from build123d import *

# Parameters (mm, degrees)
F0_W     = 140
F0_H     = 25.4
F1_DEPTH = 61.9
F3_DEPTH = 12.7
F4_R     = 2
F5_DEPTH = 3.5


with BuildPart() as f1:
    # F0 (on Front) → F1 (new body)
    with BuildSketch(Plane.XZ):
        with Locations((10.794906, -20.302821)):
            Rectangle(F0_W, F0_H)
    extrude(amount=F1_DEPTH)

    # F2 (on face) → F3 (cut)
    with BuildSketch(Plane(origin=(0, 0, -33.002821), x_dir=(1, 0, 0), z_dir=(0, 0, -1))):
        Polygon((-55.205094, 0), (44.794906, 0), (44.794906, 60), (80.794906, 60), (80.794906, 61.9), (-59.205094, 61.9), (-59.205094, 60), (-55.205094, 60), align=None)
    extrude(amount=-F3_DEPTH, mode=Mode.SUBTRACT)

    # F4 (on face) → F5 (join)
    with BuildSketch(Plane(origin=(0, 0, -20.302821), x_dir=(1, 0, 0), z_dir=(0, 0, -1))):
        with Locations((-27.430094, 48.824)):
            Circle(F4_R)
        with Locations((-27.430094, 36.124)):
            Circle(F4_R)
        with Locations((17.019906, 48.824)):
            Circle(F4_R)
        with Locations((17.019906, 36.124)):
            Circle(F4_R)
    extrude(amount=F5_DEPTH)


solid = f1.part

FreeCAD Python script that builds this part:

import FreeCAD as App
import Part
import Sketcher

V = App.Vector


def add_polygon(sketch, points):
    """Adds a closed chain of lines whose ends are joined by coincident constraints."""
    first, n = sketch.GeometryCount, len(points)
    for a, b in zip(points, points[1:] + points[:1]):
        sketch.addGeometry(Part.LineSegment(App.Vector(*a, 0), App.Vector(*b, 0)), False)
    for i in range(n):
        sketch.addConstraint(Sketcher.Constraint("Coincident", first + i, 2, first + (i + 1) % n, 1))

doc = App.newDocument("Part")
body = doc.addObject("PartDesign::Body", "Body")

sketch1 = doc.addObject("Sketcher::SketchObject", "Sketch")
body.addObject(sketch1)
sketch1.AttachmentSupport = (doc.XZ_Plane, [""])
sketch1.MapMode = "FlatFace"
add_polygon(sketch1, [(-59.205094, -7.602821), (-59.205094, -33.002821), (80.794906, -33.002821), (80.794906, -7.602821)])
sketch1.addConstraint([
    Sketcher.Constraint("Vertical", 0),
    Sketcher.Constraint("Horizontal", 1),
    Sketcher.Constraint("Vertical", 2),
    Sketcher.Constraint("Horizontal", 3),
    Sketcher.Constraint("DistanceX", 1, 1, 1, 2, 140.0),
    Sketcher.Constraint("DistanceY", 0, 2, 0, 1, 25.4),
    Sketcher.Constraint("DistanceY", 0, 2, -1, 1, 33.002821),
    Sketcher.Constraint("DistanceX", 0, 2, -1, 1, 59.205094),
])
pad1 = doc.addObject("PartDesign::Pad", "Pad")
body.addObject(pad1)
pad1.Profile = sketch1
pad1.Length = 61.9

sketch2 = doc.addObject("Sketcher::SketchObject", "Sketch001")
body.addObject(sketch2)
sketch2.AttachmentSupport = (doc.XY_Plane, [""])
sketch2.MapMode = "FlatFace"
sketch2.AttachmentOffset = App.Placement(V(0, 0, -33.002821), App.Rotation())
add_polygon(sketch2, [(-55.205094, 0), (44.794906, 0), (44.794906, -60), (80.794906, -60), (80.794906, -61.9), (-59.205094, -61.9), (-59.205094, -60), (-55.205094, -60)])
sketch2.addConstraint([
    Sketcher.Constraint("Horizontal", 0),
    Sketcher.Constraint("Vertical", 1),
    Sketcher.Constraint("Horizontal", 2),
    Sketcher.Constraint("Vertical", 3),
    Sketcher.Constraint("Horizontal", 4),
    Sketcher.Constraint("Vertical", 5),
    Sketcher.Constraint("Horizontal", 6),
    Sketcher.Constraint("Vertical", 7),
    Sketcher.Constraint("PointOnObject", 0, 2, -1),
    Sketcher.Constraint("Horizontal", 2, 2, 5, 2),
    Sketcher.Constraint("DistanceX", 0, 1, 0, 2, 100.0),
    Sketcher.Constraint("DistanceX", 2, 1, 2, 2, 36.0),
    Sketcher.Constraint("DistanceX", 4, 2, 4, 1, 140.0),
    Sketcher.Constraint("DistanceY", 1, 2, 1, 1, 60.0),
    Sketcher.Constraint("DistanceY", 3, 2, 3, 1, 1.9),
    Sketcher.Constraint("DistanceX", -1, 1, 0, 2, 44.794906),
])
pocket1 = doc.addObject("PartDesign::Pocket", "Pocket")
body.addObject(pocket1)
pocket1.Profile = sketch2
pocket1.Length = 12.7
pocket1.Reversed = True

sketch3 = doc.addObject("Sketcher::SketchObject", "Sketch002")
body.addObject(sketch3)
sketch3.AttachmentSupport = (doc.XY_Plane, [""])
sketch3.MapMode = "FlatFace"
sketch3.AttachmentOffset = App.Placement(V(0, 0, -20.302821), App.Rotation())
sketch3.addGeometry([
    Part.Circle(V(-27.430094, -48.824, 0), V(0, 0, 1), 2),
    Part.Circle(V(-27.430094, -36.124, 0), V(0, 0, 1), 2),
    Part.Circle(V(17.019906, -48.824, 0), V(0, 0, 1), 2),
    Part.Circle(V(17.019906, -36.124, 0), V(0, 0, 1), 2),
], False)
sketch3.addConstraint([
    Sketcher.Constraint("Equal", 0, 1),
    Sketcher.Constraint("Equal", 1, 2),
    Sketcher.Constraint("Equal", 2, 3),
    Sketcher.Constraint("Horizontal", 0, 3, 2, 3),
    Sketcher.Constraint("Horizontal", 1, 3, 3, 3),
    Sketcher.Constraint("Vertical", 0, 3, 1, 3),
    Sketcher.Constraint("Vertical", 2, 3, 3, 3),
    Sketcher.Constraint("Diameter", 0, 4.0),
    Sketcher.Constraint("DistanceY", 0, 3, 1, 3, 12.7),
    Sketcher.Constraint("DistanceX", 0, 3, 2, 3, 44.45),
    Sketcher.Constraint("DistanceY", 0, 3, -1, 1, 48.824),
    Sketcher.Constraint("DistanceX", 0, 3, -1, 1, 27.430094),
])
pad2 = doc.addObject("PartDesign::Pad", "Pad001")
body.addObject(pad2)
pad2.Profile = sketch3
pad2.Length = 3.5
pad2.Reversed = True

doc.recompute()
